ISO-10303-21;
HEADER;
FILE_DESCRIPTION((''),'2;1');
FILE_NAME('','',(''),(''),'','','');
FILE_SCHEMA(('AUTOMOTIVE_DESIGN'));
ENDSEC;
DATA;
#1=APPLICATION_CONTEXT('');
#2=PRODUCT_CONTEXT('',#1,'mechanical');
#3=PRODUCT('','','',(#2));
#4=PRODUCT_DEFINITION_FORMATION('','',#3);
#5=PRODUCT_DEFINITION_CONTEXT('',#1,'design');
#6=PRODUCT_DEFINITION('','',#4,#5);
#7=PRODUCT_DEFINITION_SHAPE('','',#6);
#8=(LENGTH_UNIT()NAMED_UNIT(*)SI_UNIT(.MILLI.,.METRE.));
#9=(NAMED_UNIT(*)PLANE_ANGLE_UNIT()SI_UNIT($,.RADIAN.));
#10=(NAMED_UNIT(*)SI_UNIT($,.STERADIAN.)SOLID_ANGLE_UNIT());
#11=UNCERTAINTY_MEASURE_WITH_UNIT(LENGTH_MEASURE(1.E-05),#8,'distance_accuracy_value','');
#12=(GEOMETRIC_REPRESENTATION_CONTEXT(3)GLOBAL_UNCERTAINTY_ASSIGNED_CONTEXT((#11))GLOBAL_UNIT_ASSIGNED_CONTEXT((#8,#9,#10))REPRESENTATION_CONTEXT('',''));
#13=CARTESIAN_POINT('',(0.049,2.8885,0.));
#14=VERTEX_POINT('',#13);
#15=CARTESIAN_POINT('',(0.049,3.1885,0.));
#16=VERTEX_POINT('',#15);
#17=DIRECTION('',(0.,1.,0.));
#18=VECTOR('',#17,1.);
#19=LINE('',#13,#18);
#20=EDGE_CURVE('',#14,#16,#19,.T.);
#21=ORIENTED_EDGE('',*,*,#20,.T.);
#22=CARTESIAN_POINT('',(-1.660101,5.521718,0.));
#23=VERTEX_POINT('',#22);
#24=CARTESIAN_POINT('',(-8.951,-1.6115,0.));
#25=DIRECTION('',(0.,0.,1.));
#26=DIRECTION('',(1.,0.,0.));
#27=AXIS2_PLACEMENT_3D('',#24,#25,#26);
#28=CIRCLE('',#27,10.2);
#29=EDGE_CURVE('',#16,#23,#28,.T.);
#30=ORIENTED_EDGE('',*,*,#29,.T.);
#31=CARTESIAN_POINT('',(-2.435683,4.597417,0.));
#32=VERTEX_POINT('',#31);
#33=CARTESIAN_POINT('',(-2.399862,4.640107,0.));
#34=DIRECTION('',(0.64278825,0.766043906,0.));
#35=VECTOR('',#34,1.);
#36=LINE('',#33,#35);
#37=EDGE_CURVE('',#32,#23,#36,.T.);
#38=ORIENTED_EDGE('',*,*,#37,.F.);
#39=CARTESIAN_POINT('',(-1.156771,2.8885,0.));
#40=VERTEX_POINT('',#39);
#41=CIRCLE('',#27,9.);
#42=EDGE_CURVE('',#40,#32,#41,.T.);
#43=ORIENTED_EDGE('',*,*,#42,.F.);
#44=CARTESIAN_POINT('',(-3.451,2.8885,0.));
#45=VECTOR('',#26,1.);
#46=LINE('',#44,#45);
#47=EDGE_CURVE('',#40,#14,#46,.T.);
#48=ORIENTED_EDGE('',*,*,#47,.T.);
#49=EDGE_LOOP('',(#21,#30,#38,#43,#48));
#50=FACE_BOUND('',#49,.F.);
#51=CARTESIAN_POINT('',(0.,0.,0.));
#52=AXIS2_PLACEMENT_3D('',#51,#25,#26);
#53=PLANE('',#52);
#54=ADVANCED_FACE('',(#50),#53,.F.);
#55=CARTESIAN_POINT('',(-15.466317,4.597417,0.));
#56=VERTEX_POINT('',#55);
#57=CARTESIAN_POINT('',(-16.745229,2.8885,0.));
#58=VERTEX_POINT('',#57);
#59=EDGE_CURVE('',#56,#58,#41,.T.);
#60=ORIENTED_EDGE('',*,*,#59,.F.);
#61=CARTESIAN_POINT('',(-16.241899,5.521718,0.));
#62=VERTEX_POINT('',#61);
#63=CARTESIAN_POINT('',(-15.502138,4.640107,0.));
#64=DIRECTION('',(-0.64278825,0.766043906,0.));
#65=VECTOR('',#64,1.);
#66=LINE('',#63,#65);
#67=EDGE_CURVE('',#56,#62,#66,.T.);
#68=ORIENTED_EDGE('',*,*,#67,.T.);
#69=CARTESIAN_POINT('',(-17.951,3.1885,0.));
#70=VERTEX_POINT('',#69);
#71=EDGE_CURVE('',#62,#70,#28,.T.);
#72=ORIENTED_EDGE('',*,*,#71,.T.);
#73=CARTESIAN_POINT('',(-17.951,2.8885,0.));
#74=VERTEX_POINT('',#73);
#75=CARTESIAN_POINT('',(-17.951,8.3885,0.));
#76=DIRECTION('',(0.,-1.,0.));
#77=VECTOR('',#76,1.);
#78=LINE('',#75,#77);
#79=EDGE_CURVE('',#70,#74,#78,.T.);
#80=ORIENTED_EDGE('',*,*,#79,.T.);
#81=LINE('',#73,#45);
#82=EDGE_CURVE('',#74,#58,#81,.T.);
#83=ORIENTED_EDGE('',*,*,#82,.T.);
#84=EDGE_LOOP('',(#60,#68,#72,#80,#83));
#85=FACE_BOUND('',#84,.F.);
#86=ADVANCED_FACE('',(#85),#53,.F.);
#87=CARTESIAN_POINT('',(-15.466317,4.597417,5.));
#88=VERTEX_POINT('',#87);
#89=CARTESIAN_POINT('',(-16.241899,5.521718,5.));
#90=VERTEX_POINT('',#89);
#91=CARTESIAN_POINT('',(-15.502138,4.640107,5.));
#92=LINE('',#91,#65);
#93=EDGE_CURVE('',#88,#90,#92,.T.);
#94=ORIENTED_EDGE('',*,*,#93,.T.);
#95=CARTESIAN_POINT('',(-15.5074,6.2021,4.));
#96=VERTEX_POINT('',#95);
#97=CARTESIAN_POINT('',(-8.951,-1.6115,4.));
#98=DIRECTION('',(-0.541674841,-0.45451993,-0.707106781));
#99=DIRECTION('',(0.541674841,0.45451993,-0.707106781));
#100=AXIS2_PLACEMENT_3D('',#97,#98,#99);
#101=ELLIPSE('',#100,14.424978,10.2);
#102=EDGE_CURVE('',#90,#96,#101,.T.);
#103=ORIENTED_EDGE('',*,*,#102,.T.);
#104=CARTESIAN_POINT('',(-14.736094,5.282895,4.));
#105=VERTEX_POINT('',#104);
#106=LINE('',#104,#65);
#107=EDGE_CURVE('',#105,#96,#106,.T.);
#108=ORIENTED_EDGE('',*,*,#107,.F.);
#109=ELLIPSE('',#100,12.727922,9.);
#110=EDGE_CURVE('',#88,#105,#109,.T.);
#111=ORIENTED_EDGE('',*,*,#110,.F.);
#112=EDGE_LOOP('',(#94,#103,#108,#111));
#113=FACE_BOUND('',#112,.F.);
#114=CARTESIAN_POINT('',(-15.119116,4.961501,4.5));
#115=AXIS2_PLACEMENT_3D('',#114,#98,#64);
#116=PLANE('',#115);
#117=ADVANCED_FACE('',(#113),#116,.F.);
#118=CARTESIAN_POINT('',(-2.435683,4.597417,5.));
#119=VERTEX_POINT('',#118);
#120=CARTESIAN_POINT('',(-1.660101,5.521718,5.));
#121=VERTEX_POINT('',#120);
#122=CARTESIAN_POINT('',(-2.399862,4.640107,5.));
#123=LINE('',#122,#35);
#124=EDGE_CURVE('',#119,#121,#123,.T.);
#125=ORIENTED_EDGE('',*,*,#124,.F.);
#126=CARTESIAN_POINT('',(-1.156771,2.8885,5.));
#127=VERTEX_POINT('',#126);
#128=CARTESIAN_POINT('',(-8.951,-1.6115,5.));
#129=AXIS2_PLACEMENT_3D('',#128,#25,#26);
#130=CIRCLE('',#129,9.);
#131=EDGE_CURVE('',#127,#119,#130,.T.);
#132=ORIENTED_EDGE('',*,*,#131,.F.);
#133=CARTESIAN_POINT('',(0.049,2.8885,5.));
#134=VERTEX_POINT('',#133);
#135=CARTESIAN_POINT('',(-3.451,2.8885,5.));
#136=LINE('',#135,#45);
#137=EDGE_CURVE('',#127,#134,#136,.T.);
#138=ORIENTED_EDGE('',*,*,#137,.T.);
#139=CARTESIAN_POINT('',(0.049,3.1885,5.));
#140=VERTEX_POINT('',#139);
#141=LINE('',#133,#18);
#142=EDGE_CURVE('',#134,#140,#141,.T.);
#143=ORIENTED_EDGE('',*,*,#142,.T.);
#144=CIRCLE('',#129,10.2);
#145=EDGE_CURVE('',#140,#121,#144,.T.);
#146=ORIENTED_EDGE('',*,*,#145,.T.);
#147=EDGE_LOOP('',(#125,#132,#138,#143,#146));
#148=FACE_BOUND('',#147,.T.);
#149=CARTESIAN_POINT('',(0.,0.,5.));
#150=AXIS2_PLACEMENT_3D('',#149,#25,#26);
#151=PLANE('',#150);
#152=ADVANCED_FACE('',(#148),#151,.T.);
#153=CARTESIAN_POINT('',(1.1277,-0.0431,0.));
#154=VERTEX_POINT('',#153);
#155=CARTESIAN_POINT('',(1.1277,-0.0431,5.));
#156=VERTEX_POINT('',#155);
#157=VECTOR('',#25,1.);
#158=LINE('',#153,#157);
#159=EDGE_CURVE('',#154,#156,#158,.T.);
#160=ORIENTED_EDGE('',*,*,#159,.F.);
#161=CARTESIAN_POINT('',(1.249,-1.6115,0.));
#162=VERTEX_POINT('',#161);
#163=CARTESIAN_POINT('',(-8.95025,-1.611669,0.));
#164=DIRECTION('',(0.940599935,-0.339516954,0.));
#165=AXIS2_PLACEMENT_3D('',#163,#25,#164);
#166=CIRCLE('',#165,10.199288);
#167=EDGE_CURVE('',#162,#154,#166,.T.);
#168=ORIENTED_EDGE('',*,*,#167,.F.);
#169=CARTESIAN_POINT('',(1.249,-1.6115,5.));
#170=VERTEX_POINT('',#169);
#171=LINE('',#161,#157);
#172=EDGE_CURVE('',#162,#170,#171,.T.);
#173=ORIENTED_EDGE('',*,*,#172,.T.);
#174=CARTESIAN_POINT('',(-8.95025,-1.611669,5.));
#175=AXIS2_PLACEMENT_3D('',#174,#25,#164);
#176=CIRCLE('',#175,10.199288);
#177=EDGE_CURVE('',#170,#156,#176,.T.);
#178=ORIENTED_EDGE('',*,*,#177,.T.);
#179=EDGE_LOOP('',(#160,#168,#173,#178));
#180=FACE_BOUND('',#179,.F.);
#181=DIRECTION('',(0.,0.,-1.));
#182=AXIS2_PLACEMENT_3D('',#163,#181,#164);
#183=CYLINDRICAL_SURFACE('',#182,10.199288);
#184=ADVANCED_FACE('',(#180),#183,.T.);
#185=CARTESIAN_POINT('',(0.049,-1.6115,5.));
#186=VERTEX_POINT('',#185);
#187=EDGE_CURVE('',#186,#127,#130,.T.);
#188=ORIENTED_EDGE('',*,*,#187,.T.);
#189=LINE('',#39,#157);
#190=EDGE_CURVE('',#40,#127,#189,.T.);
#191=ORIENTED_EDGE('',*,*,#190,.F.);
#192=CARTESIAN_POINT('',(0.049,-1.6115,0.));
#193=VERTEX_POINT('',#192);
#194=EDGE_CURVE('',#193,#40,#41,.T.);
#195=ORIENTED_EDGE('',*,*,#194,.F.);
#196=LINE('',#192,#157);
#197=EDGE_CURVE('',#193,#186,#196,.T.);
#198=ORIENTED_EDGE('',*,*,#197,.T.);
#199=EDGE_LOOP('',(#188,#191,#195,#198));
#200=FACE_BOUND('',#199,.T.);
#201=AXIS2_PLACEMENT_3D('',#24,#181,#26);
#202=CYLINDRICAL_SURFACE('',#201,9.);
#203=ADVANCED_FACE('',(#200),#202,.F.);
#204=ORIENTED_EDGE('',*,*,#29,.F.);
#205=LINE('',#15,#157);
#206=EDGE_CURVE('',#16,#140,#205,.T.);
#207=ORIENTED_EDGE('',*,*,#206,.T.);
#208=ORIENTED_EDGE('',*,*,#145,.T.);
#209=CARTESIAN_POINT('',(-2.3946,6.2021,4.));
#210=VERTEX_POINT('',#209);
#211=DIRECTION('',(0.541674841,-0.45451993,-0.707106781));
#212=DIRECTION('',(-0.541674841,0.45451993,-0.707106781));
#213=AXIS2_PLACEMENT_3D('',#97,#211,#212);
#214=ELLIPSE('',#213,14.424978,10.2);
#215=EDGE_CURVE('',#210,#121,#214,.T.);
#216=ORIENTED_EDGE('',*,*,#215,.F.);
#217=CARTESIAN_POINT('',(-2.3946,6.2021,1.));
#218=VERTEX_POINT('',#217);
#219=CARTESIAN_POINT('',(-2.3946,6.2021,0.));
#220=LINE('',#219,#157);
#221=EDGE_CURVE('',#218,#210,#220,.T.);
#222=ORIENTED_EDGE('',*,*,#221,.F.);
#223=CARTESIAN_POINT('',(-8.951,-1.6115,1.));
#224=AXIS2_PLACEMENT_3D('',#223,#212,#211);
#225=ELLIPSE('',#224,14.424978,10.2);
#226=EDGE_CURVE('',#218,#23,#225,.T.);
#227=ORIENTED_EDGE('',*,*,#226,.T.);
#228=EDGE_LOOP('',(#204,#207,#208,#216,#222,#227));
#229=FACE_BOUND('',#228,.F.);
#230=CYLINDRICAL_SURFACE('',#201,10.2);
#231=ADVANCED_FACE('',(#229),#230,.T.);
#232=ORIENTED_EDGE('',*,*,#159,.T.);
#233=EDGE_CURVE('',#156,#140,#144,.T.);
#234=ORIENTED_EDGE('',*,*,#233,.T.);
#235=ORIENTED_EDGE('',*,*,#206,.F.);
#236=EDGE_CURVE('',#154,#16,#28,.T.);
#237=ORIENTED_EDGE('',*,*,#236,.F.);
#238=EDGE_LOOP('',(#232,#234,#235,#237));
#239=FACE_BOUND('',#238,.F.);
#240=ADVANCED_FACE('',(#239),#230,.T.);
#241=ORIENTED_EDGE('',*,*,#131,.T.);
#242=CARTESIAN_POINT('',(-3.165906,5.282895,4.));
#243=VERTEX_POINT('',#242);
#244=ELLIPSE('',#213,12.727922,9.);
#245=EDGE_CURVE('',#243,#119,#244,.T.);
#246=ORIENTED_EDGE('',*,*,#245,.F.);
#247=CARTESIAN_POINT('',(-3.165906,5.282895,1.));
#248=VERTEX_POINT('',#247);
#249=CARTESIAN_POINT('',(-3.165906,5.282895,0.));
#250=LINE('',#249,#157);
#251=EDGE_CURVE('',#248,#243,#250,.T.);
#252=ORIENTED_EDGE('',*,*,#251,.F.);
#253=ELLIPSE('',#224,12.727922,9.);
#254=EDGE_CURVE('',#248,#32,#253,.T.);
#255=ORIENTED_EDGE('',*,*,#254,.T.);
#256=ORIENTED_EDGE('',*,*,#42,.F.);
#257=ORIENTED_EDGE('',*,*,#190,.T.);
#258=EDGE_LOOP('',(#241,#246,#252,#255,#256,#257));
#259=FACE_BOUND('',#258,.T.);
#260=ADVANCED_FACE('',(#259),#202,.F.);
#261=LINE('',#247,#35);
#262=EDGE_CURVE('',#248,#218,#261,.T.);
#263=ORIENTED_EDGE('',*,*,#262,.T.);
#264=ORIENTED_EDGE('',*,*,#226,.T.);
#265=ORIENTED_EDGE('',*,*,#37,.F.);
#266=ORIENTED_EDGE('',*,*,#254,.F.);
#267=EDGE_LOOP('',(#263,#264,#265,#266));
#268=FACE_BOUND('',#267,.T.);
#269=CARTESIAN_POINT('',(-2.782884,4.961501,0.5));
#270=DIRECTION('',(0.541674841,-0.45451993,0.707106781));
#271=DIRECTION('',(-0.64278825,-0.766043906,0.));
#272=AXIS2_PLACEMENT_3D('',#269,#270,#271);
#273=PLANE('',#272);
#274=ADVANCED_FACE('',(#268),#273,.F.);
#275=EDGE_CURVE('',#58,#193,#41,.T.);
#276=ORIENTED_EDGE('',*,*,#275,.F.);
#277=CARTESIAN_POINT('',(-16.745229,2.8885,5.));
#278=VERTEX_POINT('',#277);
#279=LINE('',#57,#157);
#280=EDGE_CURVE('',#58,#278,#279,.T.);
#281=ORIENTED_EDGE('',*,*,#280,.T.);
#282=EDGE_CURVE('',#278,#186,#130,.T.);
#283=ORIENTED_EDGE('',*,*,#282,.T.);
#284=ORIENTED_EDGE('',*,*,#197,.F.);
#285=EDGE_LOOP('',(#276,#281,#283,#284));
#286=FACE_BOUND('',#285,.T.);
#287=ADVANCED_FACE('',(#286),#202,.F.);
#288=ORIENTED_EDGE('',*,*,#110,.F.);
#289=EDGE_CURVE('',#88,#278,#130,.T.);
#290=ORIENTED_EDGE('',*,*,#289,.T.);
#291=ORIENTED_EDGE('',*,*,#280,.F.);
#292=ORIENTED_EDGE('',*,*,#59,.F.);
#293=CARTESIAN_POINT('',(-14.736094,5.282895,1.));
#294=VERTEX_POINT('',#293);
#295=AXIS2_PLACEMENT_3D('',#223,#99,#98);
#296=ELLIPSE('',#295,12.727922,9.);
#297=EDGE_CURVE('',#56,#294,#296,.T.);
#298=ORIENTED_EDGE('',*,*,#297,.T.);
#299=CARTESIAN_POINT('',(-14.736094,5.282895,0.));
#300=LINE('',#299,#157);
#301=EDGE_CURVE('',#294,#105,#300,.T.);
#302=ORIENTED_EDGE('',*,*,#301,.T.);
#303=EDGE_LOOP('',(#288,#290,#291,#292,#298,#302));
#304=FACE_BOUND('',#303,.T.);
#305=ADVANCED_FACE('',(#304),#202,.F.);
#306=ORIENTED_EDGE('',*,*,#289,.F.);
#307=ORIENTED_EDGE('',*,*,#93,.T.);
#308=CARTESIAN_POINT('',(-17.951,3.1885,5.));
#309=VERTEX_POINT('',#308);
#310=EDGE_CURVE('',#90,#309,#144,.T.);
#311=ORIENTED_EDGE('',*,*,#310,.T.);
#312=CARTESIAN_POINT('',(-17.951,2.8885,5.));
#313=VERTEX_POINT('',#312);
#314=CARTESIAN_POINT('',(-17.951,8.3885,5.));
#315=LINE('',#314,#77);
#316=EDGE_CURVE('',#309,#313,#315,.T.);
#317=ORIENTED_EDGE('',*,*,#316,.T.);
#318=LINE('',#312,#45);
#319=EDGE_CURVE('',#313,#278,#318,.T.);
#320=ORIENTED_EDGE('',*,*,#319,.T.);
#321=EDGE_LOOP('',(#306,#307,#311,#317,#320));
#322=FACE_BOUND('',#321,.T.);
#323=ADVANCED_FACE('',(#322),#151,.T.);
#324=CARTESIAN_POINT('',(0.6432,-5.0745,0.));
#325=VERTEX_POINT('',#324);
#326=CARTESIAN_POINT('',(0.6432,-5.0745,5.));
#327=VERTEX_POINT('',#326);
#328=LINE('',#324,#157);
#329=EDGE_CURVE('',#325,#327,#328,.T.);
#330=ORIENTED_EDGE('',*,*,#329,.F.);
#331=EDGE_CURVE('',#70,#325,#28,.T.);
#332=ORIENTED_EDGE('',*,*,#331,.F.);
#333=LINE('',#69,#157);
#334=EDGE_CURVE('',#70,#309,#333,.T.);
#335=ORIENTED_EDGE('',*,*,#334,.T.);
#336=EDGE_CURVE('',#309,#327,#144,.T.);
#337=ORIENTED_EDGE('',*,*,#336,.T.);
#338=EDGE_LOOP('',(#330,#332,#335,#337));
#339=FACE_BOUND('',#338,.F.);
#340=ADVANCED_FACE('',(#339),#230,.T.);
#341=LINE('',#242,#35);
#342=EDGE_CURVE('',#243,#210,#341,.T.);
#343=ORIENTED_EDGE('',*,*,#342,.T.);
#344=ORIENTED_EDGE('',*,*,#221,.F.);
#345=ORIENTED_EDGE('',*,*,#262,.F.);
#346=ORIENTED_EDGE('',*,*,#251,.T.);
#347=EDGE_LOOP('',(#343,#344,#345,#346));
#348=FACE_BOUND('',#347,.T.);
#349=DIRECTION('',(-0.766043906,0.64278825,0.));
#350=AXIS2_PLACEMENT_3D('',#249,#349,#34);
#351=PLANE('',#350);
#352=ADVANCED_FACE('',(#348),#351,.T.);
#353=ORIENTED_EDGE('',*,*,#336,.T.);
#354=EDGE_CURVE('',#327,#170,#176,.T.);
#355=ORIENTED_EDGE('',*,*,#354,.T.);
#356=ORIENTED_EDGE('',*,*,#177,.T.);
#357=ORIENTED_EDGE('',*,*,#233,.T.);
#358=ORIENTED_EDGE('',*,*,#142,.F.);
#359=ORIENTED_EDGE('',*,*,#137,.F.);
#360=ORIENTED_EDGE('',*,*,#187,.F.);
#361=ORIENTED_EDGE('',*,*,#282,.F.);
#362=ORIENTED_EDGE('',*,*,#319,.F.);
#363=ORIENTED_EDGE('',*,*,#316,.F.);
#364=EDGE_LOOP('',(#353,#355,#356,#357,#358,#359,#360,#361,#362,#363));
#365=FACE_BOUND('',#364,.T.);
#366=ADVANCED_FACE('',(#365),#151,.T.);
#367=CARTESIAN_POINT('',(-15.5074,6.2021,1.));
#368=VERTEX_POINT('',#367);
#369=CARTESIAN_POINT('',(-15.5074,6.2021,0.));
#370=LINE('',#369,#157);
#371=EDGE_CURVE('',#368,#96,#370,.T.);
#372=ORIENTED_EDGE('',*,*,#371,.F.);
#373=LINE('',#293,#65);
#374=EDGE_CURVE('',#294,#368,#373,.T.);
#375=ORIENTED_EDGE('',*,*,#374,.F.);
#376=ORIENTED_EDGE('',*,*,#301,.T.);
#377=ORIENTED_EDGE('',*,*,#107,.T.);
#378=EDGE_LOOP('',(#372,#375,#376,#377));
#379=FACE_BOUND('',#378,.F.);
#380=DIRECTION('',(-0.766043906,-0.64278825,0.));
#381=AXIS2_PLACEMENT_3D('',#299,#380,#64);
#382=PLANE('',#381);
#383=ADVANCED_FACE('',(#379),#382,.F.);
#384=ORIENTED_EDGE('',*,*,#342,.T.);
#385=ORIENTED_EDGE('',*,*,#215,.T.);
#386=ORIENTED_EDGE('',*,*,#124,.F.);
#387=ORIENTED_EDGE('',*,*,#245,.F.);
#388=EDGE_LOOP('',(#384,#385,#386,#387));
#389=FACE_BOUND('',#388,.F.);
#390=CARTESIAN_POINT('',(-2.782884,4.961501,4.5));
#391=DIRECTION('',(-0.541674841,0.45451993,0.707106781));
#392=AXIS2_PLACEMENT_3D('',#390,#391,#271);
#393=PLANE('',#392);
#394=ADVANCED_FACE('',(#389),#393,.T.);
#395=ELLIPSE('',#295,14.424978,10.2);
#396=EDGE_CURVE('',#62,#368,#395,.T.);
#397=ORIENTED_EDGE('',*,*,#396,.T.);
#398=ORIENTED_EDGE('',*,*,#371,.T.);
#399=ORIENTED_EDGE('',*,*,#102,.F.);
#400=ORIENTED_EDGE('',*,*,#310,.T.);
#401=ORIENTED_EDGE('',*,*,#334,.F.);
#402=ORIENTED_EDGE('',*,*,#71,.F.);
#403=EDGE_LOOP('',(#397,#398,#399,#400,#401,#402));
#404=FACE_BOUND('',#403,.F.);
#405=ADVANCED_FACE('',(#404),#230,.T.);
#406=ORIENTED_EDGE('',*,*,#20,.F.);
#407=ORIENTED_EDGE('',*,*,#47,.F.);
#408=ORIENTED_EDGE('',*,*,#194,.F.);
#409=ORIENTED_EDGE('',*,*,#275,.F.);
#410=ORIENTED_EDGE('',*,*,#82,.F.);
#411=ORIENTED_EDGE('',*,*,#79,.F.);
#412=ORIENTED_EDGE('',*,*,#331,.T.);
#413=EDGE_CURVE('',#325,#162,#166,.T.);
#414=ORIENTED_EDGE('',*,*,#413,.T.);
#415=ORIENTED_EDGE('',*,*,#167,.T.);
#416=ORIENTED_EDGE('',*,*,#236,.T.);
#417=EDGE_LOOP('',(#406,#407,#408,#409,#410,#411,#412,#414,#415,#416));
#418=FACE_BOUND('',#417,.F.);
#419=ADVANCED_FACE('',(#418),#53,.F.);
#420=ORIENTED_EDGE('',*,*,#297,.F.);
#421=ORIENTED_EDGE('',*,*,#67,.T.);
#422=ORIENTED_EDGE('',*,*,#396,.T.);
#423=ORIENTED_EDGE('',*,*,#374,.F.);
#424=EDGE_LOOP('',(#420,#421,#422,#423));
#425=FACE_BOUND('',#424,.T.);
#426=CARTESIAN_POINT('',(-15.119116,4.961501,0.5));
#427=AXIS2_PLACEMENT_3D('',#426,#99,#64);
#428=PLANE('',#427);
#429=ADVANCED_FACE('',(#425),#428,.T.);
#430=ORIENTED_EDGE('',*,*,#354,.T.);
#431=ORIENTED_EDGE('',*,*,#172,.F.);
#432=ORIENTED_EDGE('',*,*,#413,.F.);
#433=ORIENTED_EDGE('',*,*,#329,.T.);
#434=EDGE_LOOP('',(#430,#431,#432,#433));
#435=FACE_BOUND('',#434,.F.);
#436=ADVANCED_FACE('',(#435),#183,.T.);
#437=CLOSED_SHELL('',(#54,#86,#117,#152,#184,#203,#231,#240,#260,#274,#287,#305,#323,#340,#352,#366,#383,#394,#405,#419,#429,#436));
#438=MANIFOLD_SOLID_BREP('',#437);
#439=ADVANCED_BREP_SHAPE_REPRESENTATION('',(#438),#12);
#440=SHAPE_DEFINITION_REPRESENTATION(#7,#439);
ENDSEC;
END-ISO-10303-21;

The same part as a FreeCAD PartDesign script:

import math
import FreeCAD as App
import Part
import Sketcher

V = App.Vector
Q = App.Units.Quantity


def edges_at(feature, points):
    """Names of the edges that pass closest to the given points."""
    edges = feature.Shape.Edges
    near = lambda p: min(range(len(edges)), key=lambda i: edges[i].distToShape(Part.Vertex(*p))[0])
    return sorted({f"Edge{near(p) + 1}" for p in points})

doc = App.newDocument("Part")
body = doc.addObject("PartDesign::Body", "Body")

# Sketch on XY plane
sketch1 = body.newObject("Sketcher::SketchObject", "Sketch")
sketch1.AttachmentSupport = (doc.getObject("XY_Plane"), [""])
sketch1.MapMode = "FlatFace"
sketch1.addGeometry(Part.LineSegment(V(-2.3946, 6.2021, 0), V(-3.165906, 5.282895, 0)), False)
sketch1.addGeometry(Part.ArcOfCircle(Part.Circle(V(-8.951, -1.6115, 0), V(0, 0, 1), 9), math.radians(130.000048), math.radians(409.999952)), False)
sketch1.addGeometry(Part.LineSegment(V(-14.736094, 5.282895, 0), V(-15.5074, 6.2021, 0)), False)
sketch1.addGeometry(Part.ArcOfCircle(Part.Circle(V(-8.951, -1.6115, 0), V(0, 0, 1), 10.2), math.radians(130.000048), math.radians(340.153092)), False)
sketch1.addGeometry(Part.ArcOfCircle(Part.Circle(V(-8.951, -1.6115, 0), V(0, 0, 1), 10.2), math.radians(-19.846908), math.radians(8.845157)), False)
sketch1.addGeometry(Part.ArcOfCircle(Part.Circle(V(-8.951, -1.6115, 0), V(0, 0, 1), 10.2), math.radians(8.845157), math.radians(49.999952)), False)
sketch1.addConstraint(Sketcher.Constraint("Coincident", 0, 2, 1, 2))
sketch1.addConstraint(Sketcher.Constraint("Coincident", 1, 1, 2, 1))
sketch1.addConstraint(Sketcher.Constraint("Coincident", 2, 2, 3, 1))
sketch1.addConstraint(Sketcher.Constraint("Tangent", 3, 2, 4, 1))
sketch1.addConstraint(Sketcher.Constraint("Tangent", 4, 2, 5, 1))
sketch1.addConstraint(Sketcher.Constraint("Coincident", 5, 2, 0, 1))
sketch1.addConstraint(Sketcher.Constraint("Coincident", 3, 3, 1, 3))
sketch1.addConstraint(Sketcher.Constraint("Coincident", 5, 3, 1, 3))
sketch1.addConstraint(Sketcher.Constraint("Horizontal", 0, 2, 1, 1))
sketch1.addConstraint(Sketcher.Constraint("Horizontal", 2, 2, 5, 2))
sketch1.addConstraint(Sketcher.Constraint("Radius", 1, Q("9 mm")))
sketch1.addConstraint(Sketcher.Constraint("Radius", 3, Q("10.2 mm")))
sketch1.addConstraint(Sketcher.Constraint("Angle", 0, Q("-130 deg")))
sketch1.addConstraint(Sketcher.Constraint("DistanceX", 1, 3, -1, 1, Q("8.951 mm")))
sketch1.addConstraint(Sketcher.Constraint("DistanceX", 0, 2, -1, 1, Q("3.166 mm")))
sketch1.addConstraint(Sketcher.Constraint("DistanceY", -1, 1, 0, 2, Q("5.283 mm")))
sketch1.addConstraint(Sketcher.Constraint("DistanceY", 4, 2, -1, 1, Q("0.043 mm")))
sketch1.addConstraint(Sketcher.Constraint("DistanceY", 3, 2, 1, 3, Q("3.463 mm")))
pad1 = body.newObject("PartDesign::Pad", "Pad")
pad1.Profile = sketch1
pad1.Length = 5
doc.recompute()

chamfer = body.newObject("PartDesign::Chamfer", "Chamfer")
chamfer.Base = (pad1, edges_at(pad1, [
    (-15.122, 5.742, 5),
    (-15.122, 5.742, 0),
    (-2.78, 5.742, 5),
    (-2.78, 5.742, 0),
]))
chamfer.Size = 1

doc.recompute()
